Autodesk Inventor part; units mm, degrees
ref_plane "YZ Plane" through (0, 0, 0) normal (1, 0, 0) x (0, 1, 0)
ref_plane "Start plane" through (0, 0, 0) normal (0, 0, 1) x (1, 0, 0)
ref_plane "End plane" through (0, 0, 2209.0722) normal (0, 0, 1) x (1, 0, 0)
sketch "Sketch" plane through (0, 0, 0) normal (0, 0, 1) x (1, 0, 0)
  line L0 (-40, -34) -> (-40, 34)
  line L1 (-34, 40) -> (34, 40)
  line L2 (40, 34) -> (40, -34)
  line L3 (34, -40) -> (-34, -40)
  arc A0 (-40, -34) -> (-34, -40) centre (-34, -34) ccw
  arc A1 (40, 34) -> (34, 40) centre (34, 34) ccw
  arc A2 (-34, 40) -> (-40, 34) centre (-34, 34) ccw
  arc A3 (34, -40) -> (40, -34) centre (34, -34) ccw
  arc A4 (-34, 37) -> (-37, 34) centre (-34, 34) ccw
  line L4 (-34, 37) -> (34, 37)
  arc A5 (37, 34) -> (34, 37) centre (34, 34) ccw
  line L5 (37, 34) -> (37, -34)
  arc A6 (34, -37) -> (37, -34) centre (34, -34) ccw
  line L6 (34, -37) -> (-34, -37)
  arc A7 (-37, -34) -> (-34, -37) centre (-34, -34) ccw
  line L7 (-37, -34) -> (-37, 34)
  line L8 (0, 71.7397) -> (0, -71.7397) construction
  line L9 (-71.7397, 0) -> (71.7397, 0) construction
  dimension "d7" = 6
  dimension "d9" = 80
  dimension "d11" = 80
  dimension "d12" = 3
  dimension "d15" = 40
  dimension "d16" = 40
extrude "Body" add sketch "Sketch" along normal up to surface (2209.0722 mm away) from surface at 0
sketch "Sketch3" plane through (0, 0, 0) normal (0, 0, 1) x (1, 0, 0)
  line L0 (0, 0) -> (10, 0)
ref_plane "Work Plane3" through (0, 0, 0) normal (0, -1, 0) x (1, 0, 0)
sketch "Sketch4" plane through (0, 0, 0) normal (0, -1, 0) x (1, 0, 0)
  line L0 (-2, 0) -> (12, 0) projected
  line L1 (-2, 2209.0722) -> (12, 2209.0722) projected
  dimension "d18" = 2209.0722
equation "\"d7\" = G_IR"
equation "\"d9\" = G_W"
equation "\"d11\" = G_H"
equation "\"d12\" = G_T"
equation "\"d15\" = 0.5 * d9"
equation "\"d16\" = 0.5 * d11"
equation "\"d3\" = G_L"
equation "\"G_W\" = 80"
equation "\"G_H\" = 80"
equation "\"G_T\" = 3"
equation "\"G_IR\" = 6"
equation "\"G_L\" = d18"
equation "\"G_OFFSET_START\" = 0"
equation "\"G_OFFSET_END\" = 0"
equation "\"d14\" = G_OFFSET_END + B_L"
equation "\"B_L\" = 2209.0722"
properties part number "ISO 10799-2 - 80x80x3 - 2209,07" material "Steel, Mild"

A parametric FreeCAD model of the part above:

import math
import FreeCAD as App
import Part
import Sketcher

V = App.Vector

doc = App.newDocument("Part")
body = doc.addObject("PartDesign::Body", "Body")

sketch1 = doc.addObject("Sketcher::SketchObject", "Sketch")
body.addObject(sketch1)
sketch1.AttachmentSupport = (doc.XY_Plane, [""])
sketch1.MapMode = "FlatFace"
sketch1.addGeometry([
    Part.LineSegment(V(-40, 34, 0), V(-40, -34, 0)),
    Part.ArcOfCircle(Part.Circle(V(-34, -34, 0), V(0, 0, 1), 6), math.radians(180), math.radians(270)),
    Part.LineSegment(V(-34, -40, 0), V(34, -40, 0)),
    Part.ArcOfCircle(Part.Circle(V(34, -34, 0), V(0, 0, 1), 6), math.radians(-90), math.radians(0)),
    Part.LineSegment(V(40, -34, 0), V(40, 34, 0)),
    Part.ArcOfCircle(Part.Circle(V(34, 34, 0), V(0, 0, 1), 6), math.radians(0), math.radians(90)),
    Part.LineSegment(V(34, 40, 0), V(-34, 40, 0)),
    Part.ArcOfCircle(Part.Circle(V(-34, 34, 0), V(0, 0, 1), 6), math.radians(90), math.radians(180)),
    Part.ArcOfCircle(Part.Circle(V(-34, 34, 0), V(0, 0, 1), 3), math.radians(90), math.radians(180)),
    Part.LineSegment(V(-34, 37, 0), V(34, 37, 0)),
    Part.ArcOfCircle(Part.Circle(V(34, 34, 0), V(0, 0, 1), 3), math.radians(0), math.radians(90)),
    Part.LineSegment(V(37, 34, 0), V(37, -34, 0)),
    Part.ArcOfCircle(Part.Circle(V(34, -34, 0), V(0, 0, 1), 3), math.radians(-90), math.radians(0)),
    Part.LineSegment(V(34, -37, 0), V(-34, -37, 0)),
    Part.ArcOfCircle(Part.Circle(V(-34, -34, 0), V(0, 0, 1), 3), math.radians(180), math.radians(270)),
    Part.LineSegment(V(-37, -34, 0), V(-37, 34, 0)),
], False)
sketch1.addConstraint([
    Sketcher.Constraint("Tangent", 0, 2, 1, 1),
    Sketcher.Constraint("Tangent", 1, 2, 2, 1),
    Sketcher.Constraint("Tangent", 2, 2, 3, 1),
    Sketcher.Constraint("Tangent", 3, 2, 4, 1),
    Sketcher.Constraint("Tangent", 4, 2, 5, 1),
    Sketcher.Constraint("Tangent", 5, 2, 6, 1),
    Sketcher.Constraint("Tangent", 6, 2, 7, 1),
    Sketcher.Constraint("Tangent", 7, 2, 0, 1),
    Sketcher.Constraint("Tangent", 8, 1, 9, 1),
    Sketcher.Constraint("Tangent", 9, 2, 10, 2),
    Sketcher.Constraint("Tangent", 10, 1, 11, 1),
    Sketcher.Constraint("Tangent", 11, 2, 12, 2),
    Sketcher.Constraint("Tangent", 12, 1, 13, 1),
    Sketcher.Constraint("Tangent", 13, 2, 14, 2),
    Sketcher.Constraint("Tangent", 14, 1, 15, 1),
    Sketcher.Constraint("Tangent", 15, 2, 8, 2),
    Sketcher.Constraint("Vertical", 0),
    Sketcher.Constraint("Horizontal", 2),
    Sketcher.Constraint("Vertical", 4),
    Sketcher.Constraint("Horizontal", 6),
    Sketcher.Constraint("Horizontal", 9),
    Sketcher.Constraint("Vertical", 11),
    Sketcher.Constraint("Horizontal", 13),
    Sketcher.Constraint("Vertical", 15),
    Sketcher.Constraint("Coincident", 8, 3, 7, 3),
    Sketcher.Constraint("Coincident", 10, 3, 5, 3),
    Sketcher.Constraint("Coincident", 12, 3, 3, 3),
    Sketcher.Constraint("Equal", 1, 3),
    Sketcher.Constraint("Equal", 3, 5),
    Sketcher.Constraint("Equal", 5, 7),
    Sketcher.Constraint("Equal", 12, 14),
    Sketcher.Constraint("Symmetric", 1, 3, 5, 3, -1, 1),
    Sketcher.Constraint("Equal", 13, 0),
    Sketcher.Constraint("Radius", 1, 6.0),
    Sketcher.Constraint("Radius", 8, 3.0),
    Sketcher.Constraint("DistanceX", 0, 2, -1, 1, 40.0),
])
pad1 = doc.addObject("PartDesign::Pad", "Pad")
body.addObject(pad1)
pad1.Profile = sketch1
pad1.Length = 2209.0722

doc.recompute()
